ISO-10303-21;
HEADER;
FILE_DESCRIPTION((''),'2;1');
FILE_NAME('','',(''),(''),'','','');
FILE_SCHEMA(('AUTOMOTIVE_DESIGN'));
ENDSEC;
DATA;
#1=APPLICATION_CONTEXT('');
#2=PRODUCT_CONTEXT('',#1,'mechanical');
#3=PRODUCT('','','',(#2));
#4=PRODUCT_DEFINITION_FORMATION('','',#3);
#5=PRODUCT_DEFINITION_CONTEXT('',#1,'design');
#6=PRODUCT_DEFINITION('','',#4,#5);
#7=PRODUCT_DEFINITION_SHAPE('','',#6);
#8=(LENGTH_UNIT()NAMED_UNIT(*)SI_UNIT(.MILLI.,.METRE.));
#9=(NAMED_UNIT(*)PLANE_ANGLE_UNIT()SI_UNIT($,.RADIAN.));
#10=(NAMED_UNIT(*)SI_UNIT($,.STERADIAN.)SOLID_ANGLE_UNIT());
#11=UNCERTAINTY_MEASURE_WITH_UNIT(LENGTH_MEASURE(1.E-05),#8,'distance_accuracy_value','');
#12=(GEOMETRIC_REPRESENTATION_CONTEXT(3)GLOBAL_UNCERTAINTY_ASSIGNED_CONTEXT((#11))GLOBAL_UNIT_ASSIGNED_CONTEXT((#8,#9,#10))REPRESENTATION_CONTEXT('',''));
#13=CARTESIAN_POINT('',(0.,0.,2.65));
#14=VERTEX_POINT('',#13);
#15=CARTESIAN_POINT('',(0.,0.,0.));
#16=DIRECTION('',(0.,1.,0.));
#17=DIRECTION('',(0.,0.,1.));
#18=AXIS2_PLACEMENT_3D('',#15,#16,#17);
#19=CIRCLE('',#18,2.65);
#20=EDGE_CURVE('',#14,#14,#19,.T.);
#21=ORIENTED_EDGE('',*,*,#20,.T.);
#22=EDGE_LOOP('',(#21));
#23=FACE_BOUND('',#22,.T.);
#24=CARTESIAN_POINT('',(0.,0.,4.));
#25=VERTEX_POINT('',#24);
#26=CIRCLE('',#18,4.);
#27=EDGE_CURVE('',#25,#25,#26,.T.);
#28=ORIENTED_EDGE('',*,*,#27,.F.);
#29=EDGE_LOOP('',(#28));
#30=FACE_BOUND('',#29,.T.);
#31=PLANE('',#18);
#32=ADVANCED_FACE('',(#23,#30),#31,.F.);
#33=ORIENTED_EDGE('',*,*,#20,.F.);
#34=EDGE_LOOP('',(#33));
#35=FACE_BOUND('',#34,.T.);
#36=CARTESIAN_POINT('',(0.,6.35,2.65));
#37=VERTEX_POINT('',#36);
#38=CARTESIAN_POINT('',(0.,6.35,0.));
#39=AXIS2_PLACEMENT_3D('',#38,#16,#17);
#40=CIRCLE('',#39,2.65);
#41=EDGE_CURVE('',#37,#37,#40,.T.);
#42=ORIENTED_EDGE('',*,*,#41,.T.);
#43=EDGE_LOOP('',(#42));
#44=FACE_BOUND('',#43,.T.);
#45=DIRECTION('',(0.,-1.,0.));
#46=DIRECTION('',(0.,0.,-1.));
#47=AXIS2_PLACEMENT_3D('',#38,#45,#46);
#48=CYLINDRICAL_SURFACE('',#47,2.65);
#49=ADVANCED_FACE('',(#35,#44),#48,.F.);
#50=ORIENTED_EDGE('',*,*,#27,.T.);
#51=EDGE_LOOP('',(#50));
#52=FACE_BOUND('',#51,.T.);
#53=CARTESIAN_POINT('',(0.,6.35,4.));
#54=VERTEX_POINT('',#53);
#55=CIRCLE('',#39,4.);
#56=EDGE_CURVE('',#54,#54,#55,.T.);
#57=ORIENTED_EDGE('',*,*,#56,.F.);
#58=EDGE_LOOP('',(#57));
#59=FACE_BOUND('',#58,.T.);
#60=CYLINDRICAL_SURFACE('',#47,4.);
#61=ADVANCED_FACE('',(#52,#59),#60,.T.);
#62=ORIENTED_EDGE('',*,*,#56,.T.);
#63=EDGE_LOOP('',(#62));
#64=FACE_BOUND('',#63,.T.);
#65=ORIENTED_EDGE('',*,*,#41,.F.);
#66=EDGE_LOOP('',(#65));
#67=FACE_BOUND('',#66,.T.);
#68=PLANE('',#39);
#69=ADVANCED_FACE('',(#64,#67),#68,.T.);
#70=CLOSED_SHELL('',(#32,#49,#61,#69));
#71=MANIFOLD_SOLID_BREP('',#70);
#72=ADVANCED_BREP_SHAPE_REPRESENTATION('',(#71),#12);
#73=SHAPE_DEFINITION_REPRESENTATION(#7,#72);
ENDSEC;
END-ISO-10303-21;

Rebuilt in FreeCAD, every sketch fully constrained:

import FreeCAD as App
import Part
import Sketcher

V = App.Vector

doc = App.newDocument("Part")
body = doc.addObject("PartDesign::Body", "Body")

sketch1 = body.newObject("Sketcher::SketchObject", "Sketch")
sketch1.AttachmentSupport = (doc.getObject("XZ_Plane"), [""])
sketch1.MapMode = "FlatFace"
sketch1.addGeometry(Part.Circle(V(0, 0, 0), V(0, 0, 1), 4), False)
sketch1.addGeometry(Part.Circle(V(0, 0, 0), V(0, 0, 1), 2.6), False)
sketch1.addConstraint(Sketcher.Constraint("Coincident", 0, 3, -1, 1))
sketch1.addConstraint(Sketcher.Constraint("Coincident", 1, 3, -1, 1))
sketch1.addConstraint(Sketcher.Constraint("Diameter", 0, 8.0))
sketch1.addConstraint(Sketcher.Constraint("Diameter", 1, 5.3))
pad1 = body.newObject("PartDesign::Pad", "Pad")
pad1.Profile = sketch1
pad1.Length = 6.35
pad1.Reversed = True

doc.recompute()
